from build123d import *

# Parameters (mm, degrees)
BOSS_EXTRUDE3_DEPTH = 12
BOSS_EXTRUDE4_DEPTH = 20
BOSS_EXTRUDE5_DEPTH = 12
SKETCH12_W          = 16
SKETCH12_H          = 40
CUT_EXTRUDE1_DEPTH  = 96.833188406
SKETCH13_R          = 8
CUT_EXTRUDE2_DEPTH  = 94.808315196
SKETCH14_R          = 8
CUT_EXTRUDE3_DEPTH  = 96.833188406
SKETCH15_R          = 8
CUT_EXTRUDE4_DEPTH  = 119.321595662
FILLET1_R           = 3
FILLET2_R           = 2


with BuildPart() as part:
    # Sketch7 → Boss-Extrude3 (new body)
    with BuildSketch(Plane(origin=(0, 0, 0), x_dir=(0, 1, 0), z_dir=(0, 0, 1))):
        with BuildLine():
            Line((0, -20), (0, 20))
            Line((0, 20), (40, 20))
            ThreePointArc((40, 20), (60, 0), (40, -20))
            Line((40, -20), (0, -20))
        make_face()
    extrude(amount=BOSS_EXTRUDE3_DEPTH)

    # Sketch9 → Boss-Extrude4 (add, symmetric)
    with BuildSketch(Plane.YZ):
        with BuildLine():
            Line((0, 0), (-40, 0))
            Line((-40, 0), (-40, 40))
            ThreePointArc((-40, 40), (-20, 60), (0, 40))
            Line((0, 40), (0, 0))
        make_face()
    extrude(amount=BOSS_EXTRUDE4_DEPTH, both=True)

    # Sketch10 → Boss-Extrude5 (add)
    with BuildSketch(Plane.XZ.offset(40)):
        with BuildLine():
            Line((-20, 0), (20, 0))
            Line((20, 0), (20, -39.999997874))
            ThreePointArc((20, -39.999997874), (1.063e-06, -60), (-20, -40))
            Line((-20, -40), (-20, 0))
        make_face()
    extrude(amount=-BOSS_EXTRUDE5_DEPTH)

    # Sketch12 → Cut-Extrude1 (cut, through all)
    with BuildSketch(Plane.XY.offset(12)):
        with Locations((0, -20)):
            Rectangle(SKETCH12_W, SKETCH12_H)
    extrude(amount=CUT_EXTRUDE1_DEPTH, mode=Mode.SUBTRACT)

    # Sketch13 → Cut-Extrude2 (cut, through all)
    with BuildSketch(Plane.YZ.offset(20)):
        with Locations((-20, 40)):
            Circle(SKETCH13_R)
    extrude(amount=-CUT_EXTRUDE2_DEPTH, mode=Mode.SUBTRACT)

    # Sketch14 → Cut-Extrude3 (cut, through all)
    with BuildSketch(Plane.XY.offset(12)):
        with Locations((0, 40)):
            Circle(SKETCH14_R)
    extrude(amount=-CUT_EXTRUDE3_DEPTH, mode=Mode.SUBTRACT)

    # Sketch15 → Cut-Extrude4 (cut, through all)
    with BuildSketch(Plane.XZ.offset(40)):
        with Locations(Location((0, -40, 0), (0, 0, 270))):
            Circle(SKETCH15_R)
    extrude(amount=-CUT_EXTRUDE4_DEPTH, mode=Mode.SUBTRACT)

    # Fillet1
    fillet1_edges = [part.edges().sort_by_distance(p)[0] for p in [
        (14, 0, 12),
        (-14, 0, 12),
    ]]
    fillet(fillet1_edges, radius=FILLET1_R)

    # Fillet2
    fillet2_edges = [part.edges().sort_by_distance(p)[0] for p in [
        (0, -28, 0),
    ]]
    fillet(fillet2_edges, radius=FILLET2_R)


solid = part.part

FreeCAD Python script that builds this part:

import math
import FreeCAD as App
import Part
import Sketcher


def edges_at(feature, points):
    """Names of the edges that pass closest to the given points."""
    edges = feature.Shape.Edges
    near = lambda p: min(range(len(edges)), key=lambda i: edges[i].distToShape(Part.Vertex(*p))[0])
    return sorted({f"Edge{near(p) + 1}" for p in points})

doc = App.newDocument("Part")
body = doc.addObject("PartDesign::Body", "Body")

sketch1 = doc.addObject("Sketcher::SketchObject", "Sketch")
body.addObject(sketch1)
sketch1.AttachmentSupport = (doc.XY_Plane, [""])
sketch1.MapMode = "FlatFace"
sketch1.addGeometry(Part.LineSegment(App.Vector(-20, 0, 0), App.Vector(20, 0, 0)), False)
sketch1.addGeometry(Part.LineSegment(App.Vector(20, 0, 0), App.Vector(20, 40, 0)), False)
sketch1.addGeometry(Part.ArcOfCircle(Part.Circle(App.Vector(0, 40, 0), App.Vector(0, 0, 1), 20), math.radians(0), math.radians(180)), False)
sketch1.addGeometry(Part.LineSegment(App.Vector(-20, 40, 0), App.Vector(-20, 0, 0)), False)
sketch1.addConstraint(Sketcher.Constraint("Coincident", 0, 2, 1, 1))
sketch1.addConstraint(Sketcher.Constraint("Tangent", 1, 2, 2, 1))
sketch1.addConstraint(Sketcher.Constraint("Tangent", 2, 2, 3, 1))
sketch1.addConstraint(Sketcher.Constraint("Coincident", 3, 2, 0, 1))
sketch1.addConstraint(Sketcher.Constraint("Horizontal", 0))
sketch1.addConstraint(Sketcher.Constraint("Vertical", 1))
sketch1.addConstraint(Sketcher.Constraint("Vertical", 3))
sketch1.addConstraint(Sketcher.Constraint("Symmetric", 0, 2, 3, 2, -1, 1))
sketch1.addConstraint(Sketcher.Constraint("Equal", 0, 1))
sketch1.addConstraint(Sketcher.Constraint("Radius", 2, 20.0))
pad1 = doc.addObject("PartDesign::Pad", "Pad")
body.addObject(pad1)
pad1.Profile = sketch1
pad1.Length = 12

sketch2 = doc.addObject("Sketcher::SketchObject", "Sketch001")
body.addObject(sketch2)
sketch2.AttachmentSupport = (doc.YZ_Plane, [""])
sketch2.MapMode = "FlatFace"
sketch2.addGeometry(Part.LineSegment(App.Vector(-40, 0, 0), App.Vector(0, 0, 0)), False)
sketch2.addGeometry(Part.LineSegment(App.Vector(0, 0, 0), App.Vector(0, 40, 0)), False)
sketch2.addGeometry(Part.ArcOfCircle(Part.Circle(App.Vector(-20, 40, 0), App.Vector(0, 0, 1), 20), math.radians(0), math.radians(180)), False)
sketch2.addGeometry(Part.LineSegment(App.Vector(-40, 40, 0), App.Vector(-40, 0, 0)), False)
sketch2.addConstraint(Sketcher.Constraint("Coincident", 0, 2, 1, 1))
sketch2.addConstraint(Sketcher.Constraint("Tangent", 1, 2, 2, 1))
sketch2.addConstraint(Sketcher.Constraint("Tangent", 2, 2, 3, 1))
sketch2.addConstraint(Sketcher.Constraint("Coincident", 3, 2, 0, 1))
sketch2.addConstraint(Sketcher.Constraint("Horizontal", 0))
sketch2.addConstraint(Sketcher.Constraint("Vertical", 1))
sketch2.addConstraint(Sketcher.Constraint("Vertical", 3))
sketch2.addConstraint(Sketcher.Constraint("Coincident", 0, 2, -1, 1))
sketch2.addConstraint(Sketcher.Constraint("Equal", 0, 1))
sketch2.addConstraint(Sketcher.Constraint("Radius", 2, 20.0))
pad2 = doc.addObject("PartDesign::Pad", "Pad001")
body.addObject(pad2)
pad2.Profile = sketch2
pad2.Length = 40
pad2.Midplane = True

sketch3 = doc.addObject("Sketcher::SketchObject", "Sketch002")
body.addObject(sketch3)
sketch3.AttachmentSupport = (doc.XZ_Plane, [""])
sketch3.MapMode = "FlatFace"
sketch3.AttachmentOffset = App.Placement(App.Vector(0, 0, 40), App.Rotation())
sketch3.addGeometry(Part.LineSegment(App.Vector(20, 0, 0), App.Vector(-20, 0, 0)), False)
sketch3.addGeometry(Part.LineSegment(App.Vector(-20, 0, 0), App.Vector(-20, -40, 0)), False)
sketch3.addGeometry(Part.ArcOfCircle(Part.Circle(App.Vector(0, -40, 0), App.Vector(0, 0, 1), 20), math.radians(180), math.radians(360)), False)
sketch3.addGeometry(Part.LineSegment(App.Vector(20, -40, 0), App.Vector(20, 0, 0)), False)
sketch3.addConstraint(Sketcher.Constraint("Coincident", 0, 2, 1, 1))
sketch3.addConstraint(Sketcher.Constraint("Tangent", 1, 2, 2, 1))
sketch3.addConstraint(Sketcher.Constraint("Tangent", 2, 2, 3, 1))
sketch3.addConstraint(Sketcher.Constraint("Coincident", 3, 2, 0, 1))
sketch3.addConstraint(Sketcher.Constraint("Horizontal", 0))
sketch3.addConstraint(Sketcher.Constraint("Vertical", 1))
sketch3.addConstraint(Sketcher.Constraint("Vertical", 3))
sketch3.addConstraint(Sketcher.Constraint("Symmetric", 0, 2, 3, 2, -1, 1))
sketch3.addConstraint(Sketcher.Constraint("Equal", 0, 1))
sketch3.addConstraint(Sketcher.Constraint("Radius", 2, 20.0))
pad3 = doc.addObject("PartDesign::Pad", "Pad002")
body.addObject(pad3)
pad3.Profile = sketch3
pad3.Length = 12
pad3.Reversed = True

sketch4 = doc.addObject("Sketcher::SketchObject", "Sketch003")
body.addObject(sketch4)
sketch4.AttachmentSupport = (doc.XY_Plane, [""])
sketch4.MapMode = "FlatFace"
sketch4.AttachmentOffset = App.Placement(App.Vector(0, 0, 12), App.Rotation())
sketch4.addGeometry(Part.LineSegment(App.Vector(-8, 0, 0), App.Vector(-8, -40, 0)), False)
sketch4.addGeometry(Part.LineSegment(App.Vector(-8, -40, 0), App.Vector(8, -40, 0)), False)
sketch4.addGeometry(Part.LineSegment(App.Vector(8, -40, 0), App.Vector(8, 0, 0)), False)
sketch4.addGeometry(Part.LineSegment(App.Vector(8, 0, 0), App.Vector(-8, 0, 0)), False)
sketch4.addConstraint(Sketcher.Constraint("Coincident", 0, 2, 1, 1))
sketch4.addConstraint(Sketcher.Constraint("Coincident", 1, 2, 2, 1))
sketch4.addConstraint(Sketcher.Constraint("Coincident", 2, 2, 3, 1))
sketch4.addConstraint(Sketcher.Constraint("Coincident", 3, 2, 0, 1))
sketch4.addConstraint(Sketcher.Constraint("Vertical", 0))
sketch4.addConstraint(Sketcher.Constraint("Horizontal", 1))
sketch4.addConstraint(Sketcher.Constraint("Vertical", 2))
sketch4.addConstraint(Sketcher.Constraint("Horizontal", 3))
sketch4.addConstraint(Sketcher.Constraint("Symmetric", 2, 2, 3, 2, -1, 1))
sketch4.addConstraint(Sketcher.Constraint("DistanceX", 1, 1, 1, 2, 16.0))
sketch4.addConstraint(Sketcher.Constraint("DistanceY", 0, 2, 0, 1, 40.0))
pocket1 = doc.addObject("PartDesign::Pocket", "Pocket")
body.addObject(pocket1)
pocket1.Profile = sketch4
pocket1.Type = "ThroughAll"
pocket1.Reversed = True

sketch5 = doc.addObject("Sketcher::SketchObject", "Sketch004")
body.addObject(sketch5)
sketch5.AttachmentSupport = (doc.YZ_Plane, [""])
sketch5.MapMode = "FlatFace"
sketch5.AttachmentOffset = App.Placement(App.Vector(0, 0, 20), App.Rotation())
sketch5.addGeometry(Part.Circle(App.Vector(-20, 40, 0), App.Vector(0, 0, 1), 8), False)
sketch5.addConstraint(Sketcher.Constraint("Diameter", 0, 16.0))
sketch5.addConstraint(Sketcher.Constraint("DistanceX", 0, 3, -1, 1, 20.0))
sketch5.addConstraint(Sketcher.Constraint("DistanceY", -1, 1, 0, 3, 40.0))
pocket2 = doc.addObject("PartDesign::Pocket", "Pocket001")
body.addObject(pocket2)
pocket2.Profile = sketch5
pocket2.Type = "ThroughAll"

sketch6 = doc.addObject("Sketcher::SketchObject", "Sketch005")
body.addObject(sketch6)
sketch6.AttachmentSupport = (doc.XY_Plane, [""])
sketch6.MapMode = "FlatFace"
sketch6.AttachmentOffset = App.Placement(App.Vector(0, 0, 12), App.Rotation())
sketch6.addGeometry(Part.Circle(App.Vector(0, 40, 0), App.Vector(0, 0, 1), 8), False)
sketch6.addConstraint(Sketcher.Constraint("PointOnObject", 0, 3, -2))
sketch6.addConstraint(Sketcher.Constraint("Diameter", 0, 16.0))
sketch6.addConstraint(Sketcher.Constraint("DistanceY", -1, 1, 0, 3, 40.0))
pocket3 = doc.addObject("PartDesign::Pocket", "Pocket002")
body.addObject(pocket3)
pocket3.Profile = sketch6
pocket3.Type = "ThroughAll"

sketch7 = doc.addObject("Sketcher::SketchObject", "Sketch006")
body.addObject(sketch7)
sketch7.AttachmentSupport = (doc.XZ_Plane, [""])
sketch7.MapMode = "FlatFace"
sketch7.AttachmentOffset = App.Placement(App.Vector(0, 0, 40), App.Rotation())
sketch7.addGeometry(Part.Circle(App.Vector(0, -40, 0), App.Vector(0, 0, 1), 8), False)
sketch7.addConstraint(Sketcher.Constraint("PointOnObject", 0, 3, -2))
sketch7.addConstraint(Sketcher.Constraint("Diameter", 0, 16.0))
sketch7.addConstraint(Sketcher.Constraint("DistanceY", 0, 3, -1, 1, 40.0))
pocket4 = doc.addObject("PartDesign::Pocket", "Pocket003")
body.addObject(pocket4)
pocket4.Profile = sketch7
pocket4.Type = "ThroughAll"
doc.recompute()

fillet = doc.addObject("PartDesign::Fillet", "Fillet")
body.addObject(fillet)
fillet.Base = (pocket4, edges_at(pocket4, [(14, 0, 12), (-14, 0, 12)]))
fillet.Radius = 3
doc.recompute()

fillet2 = doc.addObject("PartDesign::Fillet", "Fillet001")
body.addObject(fillet2)
fillet2.Base = (fillet, edges_at(fillet, [(0, -28, 0)]))
fillet2.Radius = 2

doc.recompute()
